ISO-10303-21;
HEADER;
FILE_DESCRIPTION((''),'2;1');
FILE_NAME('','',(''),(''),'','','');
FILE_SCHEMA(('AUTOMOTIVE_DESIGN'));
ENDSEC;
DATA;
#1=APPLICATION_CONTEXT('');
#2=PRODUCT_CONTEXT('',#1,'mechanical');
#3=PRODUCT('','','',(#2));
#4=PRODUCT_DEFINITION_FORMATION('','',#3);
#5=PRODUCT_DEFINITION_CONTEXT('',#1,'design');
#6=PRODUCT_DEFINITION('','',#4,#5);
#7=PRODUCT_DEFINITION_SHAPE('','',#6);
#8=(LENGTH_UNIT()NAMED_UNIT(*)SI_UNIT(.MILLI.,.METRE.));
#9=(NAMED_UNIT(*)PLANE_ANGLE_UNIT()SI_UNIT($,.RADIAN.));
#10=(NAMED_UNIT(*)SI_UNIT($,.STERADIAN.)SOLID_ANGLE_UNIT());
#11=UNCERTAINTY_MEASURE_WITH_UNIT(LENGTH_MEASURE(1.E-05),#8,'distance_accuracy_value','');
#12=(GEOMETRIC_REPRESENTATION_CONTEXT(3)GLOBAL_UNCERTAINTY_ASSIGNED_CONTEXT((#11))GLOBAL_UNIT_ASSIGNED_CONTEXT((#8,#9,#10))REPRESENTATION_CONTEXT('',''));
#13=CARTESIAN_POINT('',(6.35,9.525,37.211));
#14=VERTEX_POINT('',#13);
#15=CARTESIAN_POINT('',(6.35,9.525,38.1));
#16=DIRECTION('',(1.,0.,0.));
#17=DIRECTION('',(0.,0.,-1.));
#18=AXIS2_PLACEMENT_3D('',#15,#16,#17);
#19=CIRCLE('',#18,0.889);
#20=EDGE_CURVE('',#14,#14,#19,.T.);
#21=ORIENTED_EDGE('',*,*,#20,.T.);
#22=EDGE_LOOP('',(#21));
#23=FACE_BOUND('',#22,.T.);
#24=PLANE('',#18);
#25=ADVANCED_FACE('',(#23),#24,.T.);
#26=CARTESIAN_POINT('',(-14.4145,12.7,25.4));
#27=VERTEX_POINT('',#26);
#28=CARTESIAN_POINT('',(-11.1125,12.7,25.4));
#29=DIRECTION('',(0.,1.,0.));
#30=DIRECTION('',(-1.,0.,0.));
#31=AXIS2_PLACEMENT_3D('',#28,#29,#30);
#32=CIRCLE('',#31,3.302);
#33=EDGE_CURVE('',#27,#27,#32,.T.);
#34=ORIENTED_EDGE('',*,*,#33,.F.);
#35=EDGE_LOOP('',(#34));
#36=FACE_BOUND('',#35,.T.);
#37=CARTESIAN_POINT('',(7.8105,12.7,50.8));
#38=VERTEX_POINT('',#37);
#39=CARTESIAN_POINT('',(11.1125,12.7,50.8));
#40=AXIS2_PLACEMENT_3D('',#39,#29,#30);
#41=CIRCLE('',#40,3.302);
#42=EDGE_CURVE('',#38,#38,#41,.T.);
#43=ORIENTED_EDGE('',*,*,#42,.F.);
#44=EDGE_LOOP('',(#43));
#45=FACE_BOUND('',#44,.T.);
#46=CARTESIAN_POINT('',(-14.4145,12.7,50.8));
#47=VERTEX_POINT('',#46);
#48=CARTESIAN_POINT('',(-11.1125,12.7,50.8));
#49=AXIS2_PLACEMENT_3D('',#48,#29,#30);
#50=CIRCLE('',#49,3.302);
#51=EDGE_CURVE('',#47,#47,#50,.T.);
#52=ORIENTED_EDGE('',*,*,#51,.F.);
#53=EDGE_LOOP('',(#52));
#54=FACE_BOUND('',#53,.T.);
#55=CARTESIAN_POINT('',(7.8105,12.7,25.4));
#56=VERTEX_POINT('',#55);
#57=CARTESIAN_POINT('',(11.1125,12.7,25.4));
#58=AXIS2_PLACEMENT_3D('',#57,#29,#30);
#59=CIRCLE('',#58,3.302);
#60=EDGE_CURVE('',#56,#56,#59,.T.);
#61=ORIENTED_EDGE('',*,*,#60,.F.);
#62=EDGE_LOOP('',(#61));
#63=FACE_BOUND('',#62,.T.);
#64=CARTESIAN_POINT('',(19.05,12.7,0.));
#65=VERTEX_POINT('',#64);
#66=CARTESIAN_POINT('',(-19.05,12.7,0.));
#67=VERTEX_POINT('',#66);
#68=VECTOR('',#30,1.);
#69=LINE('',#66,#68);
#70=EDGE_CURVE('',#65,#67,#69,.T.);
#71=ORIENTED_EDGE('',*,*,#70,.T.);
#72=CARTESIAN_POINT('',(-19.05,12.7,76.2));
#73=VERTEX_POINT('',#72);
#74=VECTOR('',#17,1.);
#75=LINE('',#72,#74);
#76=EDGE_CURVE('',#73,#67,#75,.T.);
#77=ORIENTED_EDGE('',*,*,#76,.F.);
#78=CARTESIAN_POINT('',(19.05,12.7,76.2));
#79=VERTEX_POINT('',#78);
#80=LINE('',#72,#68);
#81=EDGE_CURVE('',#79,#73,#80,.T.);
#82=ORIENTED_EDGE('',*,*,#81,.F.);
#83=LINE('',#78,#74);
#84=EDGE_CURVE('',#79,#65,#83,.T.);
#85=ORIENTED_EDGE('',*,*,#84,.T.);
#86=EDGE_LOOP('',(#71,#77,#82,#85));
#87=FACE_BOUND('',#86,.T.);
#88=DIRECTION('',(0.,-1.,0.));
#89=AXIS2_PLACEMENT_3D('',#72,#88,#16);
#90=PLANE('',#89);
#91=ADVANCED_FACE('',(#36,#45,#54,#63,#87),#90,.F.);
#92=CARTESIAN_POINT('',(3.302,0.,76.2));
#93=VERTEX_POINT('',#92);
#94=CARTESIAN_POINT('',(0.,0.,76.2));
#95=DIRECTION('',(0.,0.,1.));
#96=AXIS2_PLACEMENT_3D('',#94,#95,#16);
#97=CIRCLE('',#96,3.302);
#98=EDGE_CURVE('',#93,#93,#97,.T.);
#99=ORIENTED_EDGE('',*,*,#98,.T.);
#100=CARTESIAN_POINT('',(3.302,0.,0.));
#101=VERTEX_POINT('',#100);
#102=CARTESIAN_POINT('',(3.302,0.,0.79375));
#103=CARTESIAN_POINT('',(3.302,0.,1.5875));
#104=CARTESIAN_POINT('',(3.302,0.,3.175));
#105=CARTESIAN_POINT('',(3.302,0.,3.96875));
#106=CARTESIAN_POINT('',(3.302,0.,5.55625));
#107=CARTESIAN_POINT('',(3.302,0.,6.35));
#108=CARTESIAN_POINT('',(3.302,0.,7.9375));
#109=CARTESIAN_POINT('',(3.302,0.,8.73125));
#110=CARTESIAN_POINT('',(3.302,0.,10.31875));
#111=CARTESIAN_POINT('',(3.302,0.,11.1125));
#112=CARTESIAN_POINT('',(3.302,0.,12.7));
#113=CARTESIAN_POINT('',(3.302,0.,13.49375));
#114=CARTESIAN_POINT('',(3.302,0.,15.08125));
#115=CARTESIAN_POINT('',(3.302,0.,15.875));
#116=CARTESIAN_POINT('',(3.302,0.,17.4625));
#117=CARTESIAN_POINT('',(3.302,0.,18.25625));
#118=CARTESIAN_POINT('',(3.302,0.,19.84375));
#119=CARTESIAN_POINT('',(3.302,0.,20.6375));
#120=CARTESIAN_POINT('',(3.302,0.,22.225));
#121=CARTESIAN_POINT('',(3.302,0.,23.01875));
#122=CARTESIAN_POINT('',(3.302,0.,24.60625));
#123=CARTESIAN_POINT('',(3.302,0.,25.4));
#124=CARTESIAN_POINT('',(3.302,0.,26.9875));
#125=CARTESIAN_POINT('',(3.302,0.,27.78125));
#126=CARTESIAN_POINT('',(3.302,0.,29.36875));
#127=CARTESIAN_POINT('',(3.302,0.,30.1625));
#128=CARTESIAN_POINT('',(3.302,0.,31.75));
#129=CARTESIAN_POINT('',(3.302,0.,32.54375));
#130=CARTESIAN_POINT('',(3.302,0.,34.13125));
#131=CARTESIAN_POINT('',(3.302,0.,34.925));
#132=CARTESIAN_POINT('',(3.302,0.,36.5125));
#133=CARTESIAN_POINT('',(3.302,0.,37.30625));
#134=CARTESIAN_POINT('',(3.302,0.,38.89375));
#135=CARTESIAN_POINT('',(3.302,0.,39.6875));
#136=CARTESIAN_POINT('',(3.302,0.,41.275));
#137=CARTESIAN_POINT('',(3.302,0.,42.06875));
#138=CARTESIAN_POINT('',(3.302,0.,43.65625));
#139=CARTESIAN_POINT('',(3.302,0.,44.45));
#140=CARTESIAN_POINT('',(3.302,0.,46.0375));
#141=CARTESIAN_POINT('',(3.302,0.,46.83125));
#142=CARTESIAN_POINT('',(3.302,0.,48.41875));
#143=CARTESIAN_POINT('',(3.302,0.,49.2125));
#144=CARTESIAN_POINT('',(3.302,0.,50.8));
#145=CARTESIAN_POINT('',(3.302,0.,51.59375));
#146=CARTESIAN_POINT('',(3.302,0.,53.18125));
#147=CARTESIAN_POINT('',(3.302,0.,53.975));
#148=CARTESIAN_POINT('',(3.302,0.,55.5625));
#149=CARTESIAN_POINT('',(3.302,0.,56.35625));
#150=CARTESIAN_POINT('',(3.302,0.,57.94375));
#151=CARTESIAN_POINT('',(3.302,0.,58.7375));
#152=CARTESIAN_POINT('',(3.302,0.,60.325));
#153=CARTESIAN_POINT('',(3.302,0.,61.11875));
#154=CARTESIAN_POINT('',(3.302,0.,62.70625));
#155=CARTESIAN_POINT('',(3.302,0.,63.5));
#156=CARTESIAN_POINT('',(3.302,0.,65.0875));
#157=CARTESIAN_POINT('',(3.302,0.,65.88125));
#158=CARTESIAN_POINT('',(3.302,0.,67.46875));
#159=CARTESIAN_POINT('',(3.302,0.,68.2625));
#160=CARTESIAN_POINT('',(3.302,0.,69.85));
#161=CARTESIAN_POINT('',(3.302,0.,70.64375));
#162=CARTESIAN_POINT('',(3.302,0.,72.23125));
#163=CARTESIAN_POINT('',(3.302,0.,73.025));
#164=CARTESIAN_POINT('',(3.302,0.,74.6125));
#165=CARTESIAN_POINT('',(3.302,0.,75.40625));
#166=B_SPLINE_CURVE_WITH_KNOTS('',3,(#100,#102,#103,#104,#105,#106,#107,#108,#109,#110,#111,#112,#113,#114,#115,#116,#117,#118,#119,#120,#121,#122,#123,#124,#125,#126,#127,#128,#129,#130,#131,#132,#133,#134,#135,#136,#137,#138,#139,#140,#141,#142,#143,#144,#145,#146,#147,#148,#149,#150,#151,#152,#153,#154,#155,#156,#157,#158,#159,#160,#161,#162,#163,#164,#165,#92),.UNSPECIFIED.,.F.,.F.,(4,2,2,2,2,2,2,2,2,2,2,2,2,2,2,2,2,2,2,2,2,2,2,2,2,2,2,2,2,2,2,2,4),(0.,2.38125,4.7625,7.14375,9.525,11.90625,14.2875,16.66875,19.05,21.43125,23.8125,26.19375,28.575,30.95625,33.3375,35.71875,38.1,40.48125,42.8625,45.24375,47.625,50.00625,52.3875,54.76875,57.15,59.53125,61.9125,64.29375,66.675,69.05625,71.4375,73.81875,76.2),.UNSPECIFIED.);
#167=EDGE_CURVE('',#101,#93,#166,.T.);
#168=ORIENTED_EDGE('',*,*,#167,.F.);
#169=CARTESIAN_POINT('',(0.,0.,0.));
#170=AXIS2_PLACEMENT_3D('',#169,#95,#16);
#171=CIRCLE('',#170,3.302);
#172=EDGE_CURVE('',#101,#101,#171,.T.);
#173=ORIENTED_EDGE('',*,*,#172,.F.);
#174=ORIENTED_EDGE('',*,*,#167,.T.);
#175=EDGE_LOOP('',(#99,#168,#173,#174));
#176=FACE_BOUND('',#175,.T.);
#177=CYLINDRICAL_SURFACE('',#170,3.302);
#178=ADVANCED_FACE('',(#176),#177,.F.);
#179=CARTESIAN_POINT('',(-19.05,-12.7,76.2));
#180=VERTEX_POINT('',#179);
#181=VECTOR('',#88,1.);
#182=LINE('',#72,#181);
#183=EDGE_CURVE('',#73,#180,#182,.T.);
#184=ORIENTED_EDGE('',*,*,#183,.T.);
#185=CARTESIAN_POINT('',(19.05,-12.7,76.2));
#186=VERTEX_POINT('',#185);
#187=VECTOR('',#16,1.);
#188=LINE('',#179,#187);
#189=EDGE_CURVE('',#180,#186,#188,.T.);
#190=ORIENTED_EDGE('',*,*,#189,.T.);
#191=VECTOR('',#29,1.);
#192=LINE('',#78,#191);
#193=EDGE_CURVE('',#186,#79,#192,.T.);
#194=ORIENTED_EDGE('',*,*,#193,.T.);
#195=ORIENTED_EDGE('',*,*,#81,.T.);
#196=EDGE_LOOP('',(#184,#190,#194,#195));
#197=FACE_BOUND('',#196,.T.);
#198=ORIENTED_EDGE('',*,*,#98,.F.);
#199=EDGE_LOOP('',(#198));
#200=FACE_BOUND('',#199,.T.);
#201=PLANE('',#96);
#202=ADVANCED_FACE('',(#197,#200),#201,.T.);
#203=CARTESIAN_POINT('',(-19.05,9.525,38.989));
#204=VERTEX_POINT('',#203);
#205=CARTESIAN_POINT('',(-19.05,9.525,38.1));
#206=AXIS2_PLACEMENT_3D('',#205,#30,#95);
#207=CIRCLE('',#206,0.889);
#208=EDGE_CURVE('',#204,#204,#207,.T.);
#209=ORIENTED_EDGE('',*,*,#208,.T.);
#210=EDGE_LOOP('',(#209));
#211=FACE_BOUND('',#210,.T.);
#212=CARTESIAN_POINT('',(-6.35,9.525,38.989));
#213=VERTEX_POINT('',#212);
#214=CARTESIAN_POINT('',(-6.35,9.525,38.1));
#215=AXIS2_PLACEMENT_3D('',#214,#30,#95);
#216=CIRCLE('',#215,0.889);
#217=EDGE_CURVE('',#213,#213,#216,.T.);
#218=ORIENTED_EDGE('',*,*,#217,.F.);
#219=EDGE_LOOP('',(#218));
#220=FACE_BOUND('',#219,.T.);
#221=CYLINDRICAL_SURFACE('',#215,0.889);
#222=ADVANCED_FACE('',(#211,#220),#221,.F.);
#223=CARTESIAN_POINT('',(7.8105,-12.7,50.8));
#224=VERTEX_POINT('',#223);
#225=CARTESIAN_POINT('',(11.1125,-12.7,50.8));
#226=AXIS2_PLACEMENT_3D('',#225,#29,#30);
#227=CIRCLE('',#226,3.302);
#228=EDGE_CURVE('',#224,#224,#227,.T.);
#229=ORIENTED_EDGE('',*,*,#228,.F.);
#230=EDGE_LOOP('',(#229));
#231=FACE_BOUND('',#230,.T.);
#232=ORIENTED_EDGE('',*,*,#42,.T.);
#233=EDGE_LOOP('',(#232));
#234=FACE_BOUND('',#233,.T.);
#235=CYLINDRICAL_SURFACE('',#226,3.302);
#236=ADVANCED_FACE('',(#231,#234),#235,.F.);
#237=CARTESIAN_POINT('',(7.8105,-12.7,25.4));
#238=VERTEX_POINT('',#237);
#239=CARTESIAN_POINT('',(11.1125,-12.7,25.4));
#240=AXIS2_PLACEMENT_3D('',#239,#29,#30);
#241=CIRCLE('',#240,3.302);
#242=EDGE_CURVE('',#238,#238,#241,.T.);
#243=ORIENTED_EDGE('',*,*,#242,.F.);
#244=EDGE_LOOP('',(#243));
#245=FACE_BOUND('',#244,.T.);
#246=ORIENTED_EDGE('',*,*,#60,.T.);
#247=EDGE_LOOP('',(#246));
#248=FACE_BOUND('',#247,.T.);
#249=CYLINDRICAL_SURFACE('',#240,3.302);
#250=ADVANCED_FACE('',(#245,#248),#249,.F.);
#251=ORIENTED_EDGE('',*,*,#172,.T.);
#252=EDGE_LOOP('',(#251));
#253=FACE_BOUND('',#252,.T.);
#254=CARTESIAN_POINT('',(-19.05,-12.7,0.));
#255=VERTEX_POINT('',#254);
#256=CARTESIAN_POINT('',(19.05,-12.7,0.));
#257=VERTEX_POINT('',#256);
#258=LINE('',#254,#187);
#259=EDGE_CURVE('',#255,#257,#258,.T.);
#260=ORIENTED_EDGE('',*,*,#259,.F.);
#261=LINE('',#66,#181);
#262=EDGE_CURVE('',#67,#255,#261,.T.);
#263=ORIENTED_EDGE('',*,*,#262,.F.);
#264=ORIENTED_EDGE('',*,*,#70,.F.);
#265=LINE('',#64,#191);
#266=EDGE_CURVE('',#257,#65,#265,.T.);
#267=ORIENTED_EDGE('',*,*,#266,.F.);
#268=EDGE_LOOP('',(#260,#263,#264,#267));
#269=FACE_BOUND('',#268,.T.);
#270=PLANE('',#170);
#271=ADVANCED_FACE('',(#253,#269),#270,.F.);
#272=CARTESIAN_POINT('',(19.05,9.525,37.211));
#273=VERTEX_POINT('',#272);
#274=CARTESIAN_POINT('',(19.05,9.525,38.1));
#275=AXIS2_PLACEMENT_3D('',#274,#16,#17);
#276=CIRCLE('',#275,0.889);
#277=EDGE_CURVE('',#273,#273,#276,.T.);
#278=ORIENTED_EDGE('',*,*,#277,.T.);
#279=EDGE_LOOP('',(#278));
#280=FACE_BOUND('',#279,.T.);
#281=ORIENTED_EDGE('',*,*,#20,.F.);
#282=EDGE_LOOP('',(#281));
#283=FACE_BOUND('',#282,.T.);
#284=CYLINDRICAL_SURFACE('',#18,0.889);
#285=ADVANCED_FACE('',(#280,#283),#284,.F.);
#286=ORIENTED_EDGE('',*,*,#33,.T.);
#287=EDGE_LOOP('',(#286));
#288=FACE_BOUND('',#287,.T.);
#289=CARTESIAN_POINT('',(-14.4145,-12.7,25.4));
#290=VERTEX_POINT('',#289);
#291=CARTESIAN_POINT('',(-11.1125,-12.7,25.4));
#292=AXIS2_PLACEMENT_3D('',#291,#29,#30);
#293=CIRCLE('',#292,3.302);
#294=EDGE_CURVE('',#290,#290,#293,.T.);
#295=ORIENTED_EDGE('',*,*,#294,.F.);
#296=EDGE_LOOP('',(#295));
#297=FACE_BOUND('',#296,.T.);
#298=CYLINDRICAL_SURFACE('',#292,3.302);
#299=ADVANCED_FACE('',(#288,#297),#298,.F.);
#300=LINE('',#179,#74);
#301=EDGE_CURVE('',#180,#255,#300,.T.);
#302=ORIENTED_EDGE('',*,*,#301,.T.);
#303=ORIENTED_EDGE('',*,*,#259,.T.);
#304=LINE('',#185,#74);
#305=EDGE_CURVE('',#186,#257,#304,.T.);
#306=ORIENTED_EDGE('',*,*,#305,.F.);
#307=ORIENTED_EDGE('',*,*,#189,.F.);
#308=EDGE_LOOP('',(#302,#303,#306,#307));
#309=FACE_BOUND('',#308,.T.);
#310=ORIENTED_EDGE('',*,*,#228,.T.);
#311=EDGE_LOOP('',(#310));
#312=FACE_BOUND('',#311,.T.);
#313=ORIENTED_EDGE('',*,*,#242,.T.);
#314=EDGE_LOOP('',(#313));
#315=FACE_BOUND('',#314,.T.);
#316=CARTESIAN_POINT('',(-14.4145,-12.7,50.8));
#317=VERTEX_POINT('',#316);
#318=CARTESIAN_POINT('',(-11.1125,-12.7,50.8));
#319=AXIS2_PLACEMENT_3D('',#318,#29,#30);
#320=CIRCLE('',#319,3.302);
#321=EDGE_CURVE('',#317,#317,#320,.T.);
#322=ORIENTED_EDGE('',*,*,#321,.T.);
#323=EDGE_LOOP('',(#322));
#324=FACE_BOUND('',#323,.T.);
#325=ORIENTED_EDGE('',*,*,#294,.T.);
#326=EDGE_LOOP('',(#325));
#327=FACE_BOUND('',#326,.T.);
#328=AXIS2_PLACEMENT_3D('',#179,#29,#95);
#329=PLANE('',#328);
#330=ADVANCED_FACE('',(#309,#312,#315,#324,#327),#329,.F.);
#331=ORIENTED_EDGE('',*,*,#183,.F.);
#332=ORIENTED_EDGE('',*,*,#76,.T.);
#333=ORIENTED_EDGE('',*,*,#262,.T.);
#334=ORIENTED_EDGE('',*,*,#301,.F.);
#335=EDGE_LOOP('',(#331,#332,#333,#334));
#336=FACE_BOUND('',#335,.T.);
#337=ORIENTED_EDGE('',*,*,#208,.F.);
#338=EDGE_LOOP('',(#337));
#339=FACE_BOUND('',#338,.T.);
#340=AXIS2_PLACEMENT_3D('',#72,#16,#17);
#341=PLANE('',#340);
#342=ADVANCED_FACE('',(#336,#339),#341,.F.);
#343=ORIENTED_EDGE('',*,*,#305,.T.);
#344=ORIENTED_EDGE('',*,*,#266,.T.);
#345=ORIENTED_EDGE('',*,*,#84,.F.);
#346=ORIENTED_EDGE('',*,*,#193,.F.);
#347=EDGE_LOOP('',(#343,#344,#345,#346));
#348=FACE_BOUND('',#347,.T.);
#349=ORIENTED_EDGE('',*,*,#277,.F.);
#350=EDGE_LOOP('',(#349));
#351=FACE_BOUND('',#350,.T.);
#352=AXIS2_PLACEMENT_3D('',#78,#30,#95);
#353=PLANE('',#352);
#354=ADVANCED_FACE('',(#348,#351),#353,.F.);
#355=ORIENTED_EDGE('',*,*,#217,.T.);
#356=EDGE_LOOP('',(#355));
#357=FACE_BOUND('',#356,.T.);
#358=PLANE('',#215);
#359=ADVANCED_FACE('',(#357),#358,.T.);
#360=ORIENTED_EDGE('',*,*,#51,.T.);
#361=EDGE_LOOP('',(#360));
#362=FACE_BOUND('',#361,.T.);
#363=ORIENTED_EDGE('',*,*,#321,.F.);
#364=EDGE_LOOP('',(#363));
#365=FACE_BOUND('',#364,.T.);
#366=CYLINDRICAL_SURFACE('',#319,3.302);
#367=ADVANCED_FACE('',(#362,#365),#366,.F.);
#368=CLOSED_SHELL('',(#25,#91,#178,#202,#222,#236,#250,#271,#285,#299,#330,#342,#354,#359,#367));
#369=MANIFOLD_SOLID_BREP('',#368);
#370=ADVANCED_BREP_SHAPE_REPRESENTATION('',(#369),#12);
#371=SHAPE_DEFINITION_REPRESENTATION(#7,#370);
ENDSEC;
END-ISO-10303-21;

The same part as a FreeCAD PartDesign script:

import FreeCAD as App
import Part
import Sketcher
Q = App.Units.Quantity

doc = App.newDocument("Part")
params = doc.addObject("Spreadsheet::Sheet", "Params")
for row, (alias, value) in enumerate([
    ("sketch1_height", "1 in"),
    ("sketch1_width", "1.5 in"),
    ("pad1_length", "3 in"),
    ("sketch2_diameter", "0.26 in"),
    ("sketch3_diameter", "0.26 in"),
    ("sketch4_diameter", "0.07 in"),
    ("pocket3_length", "0.5 in"),
    ("sketch5_diameter", "0.07 in"),
    ("pocket4_length", "0.5 in"),
], start=1):
    params.set(f"A{row}", alias)
    params.set(f"B{row}", "=" + value)
    params.setAlias(f"B{row}", alias)

body = doc.addObject("PartDesign::Body", "Body")

# Sketch on XY plane
sketch1 = body.newObject("Sketcher::SketchObject", "Sketch")
sketch1.AttachmentSupport = (doc.getObject("XY_Plane"), [""])
sketch1.MapMode = "FlatFace"
sketch1.addGeometry([
    Part.LineSegment(App.Vector(-19, 13, 0), App.Vector(-19, -13, 0)),
    Part.LineSegment(App.Vector(-19, -13, 0), App.Vector(19, -13, 0)),
    Part.LineSegment(App.Vector(19, -13, 0), App.Vector(19, 13, 0)),
    Part.LineSegment(App.Vector(19, 13, 0), App.Vector(-19, 13, 0)),
], False)
sketch1.addConstraint([
    Sketcher.Constraint("Coincident", 0, 2, 1, 1),
    Sketcher.Constraint("Coincident", 1, 2, 2, 1),
    Sketcher.Constraint("Coincident", 2, 2, 3, 1),
    Sketcher.Constraint("Coincident", 3, 2, 0, 1),
    Sketcher.Constraint("Vertical", 0),
    Sketcher.Constraint("Horizontal", 1),
    Sketcher.Constraint("Vertical", 2),
    Sketcher.Constraint("Horizontal", 3),
    Sketcher.Constraint("Symmetric", 0, 2, 2, 2, -1, 1),
    Sketcher.Constraint("DistanceY", 0, 2, 0, 1, Q("1 in")),
    Sketcher.Constraint("DistanceX", 1, 1, 1, 2, Q("1.5 in")),
])
sketch1.setExpression("Constraints[9]", "Params.sketch1_height")
sketch1.setExpression("Constraints[10]", "Params.sketch1_width")
pad1 = body.newObject("PartDesign::Pad", "Pad")
pad1.Profile = sketch1
pad1.setExpression("Length", "Params.pad1_length")

# Sketch on XY plane
sketch2 = body.newObject("Sketcher::SketchObject", "Sketch001")
sketch2.AttachmentSupport = (doc.getObject("XY_Plane"), [""])
sketch2.MapMode = "FlatFace"
sketch2.AttachmentOffset = App.Placement(App.Vector(0, 0, 3 * 25.4), App.Rotation())
sketch2.addGeometry(Part.Circle(App.Vector(0, 0, 0), App.Vector(0, 0, 1), 3.3), False)
sketch2.addConstraint([
    Sketcher.Constraint("Coincident", 0, 3, -1, 1),
    Sketcher.Constraint("Diameter", 0, Q("0.26 in")),
])
sketch2.setExpression("Constraints[1]", "Params.sketch2_diameter")
pocket1 = body.newObject("PartDesign::Pocket", "Pocket")
pocket1.Profile = sketch2
pocket1.Type = "ThroughAll"

# Sketch on XZ plane
sketch3 = body.newObject("Sketcher::SketchObject", "Sketch002")
sketch3.AttachmentSupport = (doc.getObject("XZ_Plane"), [""])
sketch3.MapMode = "FlatFace"
sketch3.AttachmentOffset = App.Placement(App.Vector(0, 0, -0.5 * 25.4), App.Rotation())
sketch3.addGeometry([
    Part.Circle(App.Vector(-11.1, 25.4, 0), App.Vector(0, 0, 1), 3.3),
    Part.Circle(App.Vector(11.1, 25.4, 0), App.Vector(0, 0, 1), 3.3),
    Part.Circle(App.Vector(-11.1, 50.8, 0), App.Vector(0, 0, 1), 3.3),
    Part.Circle(App.Vector(11.1, 50.8, 0), App.Vector(0, 0, 1), 3.3),
], False)
sketch3.addConstraint([
    Sketcher.Constraint("Equal", 0, 1),
    Sketcher.Constraint("Equal", 1, 2),
    Sketcher.Constraint("Equal", 2, 3),
    Sketcher.Constraint("Symmetric", 0, 3, 1, 3, -2),
    Sketcher.Constraint("Symmetric", 2, 3, 3, 3, -2),
    Sketcher.Constraint("Vertical", 0, 3, 2, 3),
    Sketcher.Constraint("Diameter", 0, Q("0.26 in")),
    Sketcher.Constraint("DistanceY", -1, 1, 0, 3, Q("1 in")),
    Sketcher.Constraint("DistanceY", -1, 1, 2, 3, Q("2 in")),
    Sketcher.Constraint("DistanceX", 0, 3, -1, 1, Q("0.4375 in")),
])
sketch3.setExpression("Constraints[6]", "Params.sketch3_diameter")
pocket2 = body.newObject("PartDesign::Pocket", "Pocket001")
pocket2.Profile = sketch3
pocket2.Type = "ThroughAll"
pocket2.Reversed = True

# Sketch on YZ plane
sketch4 = body.newObject("Sketcher::SketchObject", "Sketch003")
sketch4.AttachmentSupport = (doc.getObject("YZ_Plane"), [""])
sketch4.MapMode = "FlatFace"
sketch4.AttachmentOffset = App.Placement(App.Vector(0, 0, 0.75 * 25.4), App.Rotation())
sketch4.addGeometry(Part.Circle(App.Vector(9.5, 38.1, 0), App.Vector(0, 0, 1), 0.9), False)
sketch4.addConstraint([
    Sketcher.Constraint("Diameter", 0, Q("0.07 in")),
    Sketcher.Constraint("DistanceY", -1, 1, 0, 3, Q("1.5 in")),
    Sketcher.Constraint("DistanceX", -1, 1, 0, 3, Q("0.375 in")),
])
sketch4.setExpression("Constraints[0]", "Params.sketch4_diameter")
pocket3 = body.newObject("PartDesign::Pocket", "Pocket002")
pocket3.Profile = sketch4
pocket3.setExpression("Length", "Params.pocket3_length")

# Sketch on YZ plane
sketch5 = body.newObject("Sketcher::SketchObject", "Sketch004")
sketch5.AttachmentSupport = (doc.getObject("YZ_Plane"), [""])
sketch5.MapMode = "FlatFace"
sketch5.AttachmentOffset = App.Placement(App.Vector(0, 0, -0.25 * 25.4), App.Rotation())
sketch5.addGeometry(Part.Circle(App.Vector(9.5, 38.1, 0), App.Vector(0, 0, 1), 0.9), False)
sketch5.addConstraint([
    Sketcher.Constraint("Diameter", 0, Q("0.07 in")),
    Sketcher.Constraint("DistanceY", -1, 1, 0, 3, Q("1.5 in")),
    Sketcher.Constraint("DistanceX", -1, 1, 0, 3, Q("0.375 in")),
])
sketch5.setExpression("Constraints[0]", "Params.sketch5_diameter")
pocket4 = body.newObject("PartDesign::Pocket", "Pocket003")
pocket4.Profile = sketch5
pocket4.setExpression("Length", "Params.pocket4_length")

doc.recompute()
